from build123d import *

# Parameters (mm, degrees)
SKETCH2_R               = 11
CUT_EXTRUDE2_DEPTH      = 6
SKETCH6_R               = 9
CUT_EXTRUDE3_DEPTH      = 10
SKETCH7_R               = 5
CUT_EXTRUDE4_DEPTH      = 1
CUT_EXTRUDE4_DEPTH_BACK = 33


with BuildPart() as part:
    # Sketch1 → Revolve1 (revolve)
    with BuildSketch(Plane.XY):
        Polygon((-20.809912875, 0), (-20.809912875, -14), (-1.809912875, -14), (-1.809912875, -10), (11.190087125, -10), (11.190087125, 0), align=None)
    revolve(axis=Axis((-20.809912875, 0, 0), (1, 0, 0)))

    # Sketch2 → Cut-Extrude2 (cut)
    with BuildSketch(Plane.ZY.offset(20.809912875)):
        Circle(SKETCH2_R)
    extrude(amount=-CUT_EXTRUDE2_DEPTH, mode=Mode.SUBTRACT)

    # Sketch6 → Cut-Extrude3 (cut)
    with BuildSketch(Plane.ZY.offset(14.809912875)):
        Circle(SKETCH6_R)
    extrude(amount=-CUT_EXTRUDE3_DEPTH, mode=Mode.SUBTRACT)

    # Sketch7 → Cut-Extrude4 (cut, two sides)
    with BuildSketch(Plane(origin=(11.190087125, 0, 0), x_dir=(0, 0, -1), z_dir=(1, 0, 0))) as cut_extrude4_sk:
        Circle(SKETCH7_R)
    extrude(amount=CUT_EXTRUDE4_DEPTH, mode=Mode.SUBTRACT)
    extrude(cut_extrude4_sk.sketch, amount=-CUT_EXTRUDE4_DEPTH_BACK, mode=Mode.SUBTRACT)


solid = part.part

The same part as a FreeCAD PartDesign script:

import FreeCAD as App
import Part
import Sketcher
from FreeCAD import Vector
Q = App.Units.Quantity

doc = App.newDocument("Part")
body = doc.addObject("PartDesign::Body", "Body")

sketch1 = doc.addObject("Sketcher::SketchObject", "Sketch")
body.addObject(sketch1)
sketch1.AttachmentSupport = (doc.XY_Plane, [""])
sketch1.MapMode = "FlatFace"
sketch1.addGeometry([
    Part.LineSegment(Vector(-20.8, 0, 0), Vector(-20.8, -14, 0)),
    Part.LineSegment(Vector(-20.8, -14, 0), Vector(-1.8, -14, 0)),
    Part.LineSegment(Vector(-1.8, -14, 0), Vector(-1.8, -10, 0)),
    Part.LineSegment(Vector(-1.8, -10, 0), Vector(11.2, -10, 0)),
    Part.LineSegment(Vector(11.2, -10, 0), Vector(11.2, 0, 0)),
    Part.LineSegment(Vector(11.2, 0, 0), Vector(-20.8, 0, 0)),
], False)
sketch1.addConstraint([
    Sketcher.Constraint("Coincident", 0, 2, 1, 1),
    Sketcher.Constraint("Coincident", 1, 2, 2, 1),
    Sketcher.Constraint("Coincident", 2, 2, 3, 1),
    Sketcher.Constraint("Coincident", 3, 2, 4, 1),
    Sketcher.Constraint("Coincident", 4, 2, 5, 1),
    Sketcher.Constraint("Coincident", 5, 2, 0, 1),
    Sketcher.Constraint("Vertical", 0),
    Sketcher.Constraint("Horizontal", 1),
    Sketcher.Constraint("Vertical", 2),
    Sketcher.Constraint("Horizontal", 3),
    Sketcher.Constraint("Vertical", 4),
    Sketcher.Constraint("Horizontal", 5),
    Sketcher.Constraint("PointOnObject", 4, 2, -1),
    Sketcher.Constraint("DistanceX", 1, 1, 1, 2, Q("19 mm")),
    Sketcher.Constraint("DistanceX", 3, 1, 3, 2, Q("13 mm")),
    Sketcher.Constraint("DistanceY", 0, 2, 0, 1, Q("14 mm")),
    Sketcher.Constraint("DistanceY", 2, 1, 2, 2, Q("4 mm")),
    Sketcher.Constraint("DistanceX", 0, 2, -1, 1, Q("20.809913 mm")),
])
revolution = doc.addObject("PartDesign::Revolution", "Revolution")
body.addObject(revolution)
revolution.Profile = sketch1
revolution.ReferenceAxis = (sketch1, ["H_Axis"])
revolution.Angle = 360

sketch2 = doc.addObject("Sketcher::SketchObject", "Sketch001")
body.addObject(sketch2)
sketch2.AttachmentSupport = (doc.YZ_Plane, [""])
sketch2.MapMode = "FlatFace"
sketch2.AttachmentOffset = App.Placement(Vector(0, 0, -20.809913), App.Rotation())
sketch2.addGeometry(Part.Circle(Vector(0, 0, 0), Vector(0, 0, 1), 11), False)
sketch2.addConstraint([
    Sketcher.Constraint("Coincident", 0, 3, -1, 1),
    Sketcher.Constraint("Diameter", 0, Q("22 mm")),
])
pocket1 = doc.addObject("PartDesign::Pocket", "Pocket")
body.addObject(pocket1)
pocket1.Profile = sketch2
pocket1.Length = 6
pocket1.Reversed = True

sketch3 = doc.addObject("Sketcher::SketchObject", "Sketch002")
body.addObject(sketch3)
sketch3.AttachmentSupport = (doc.YZ_Plane, [""])
sketch3.MapMode = "FlatFace"
sketch3.AttachmentOffset = App.Placement(Vector(0, 0, -14.809913), App.Rotation())
sketch3.addGeometry(Part.Circle(Vector(0, 0, 0), Vector(0, 0, 1), 9), False)
sketch3.addConstraint([
    Sketcher.Constraint("Coincident", 0, 3, -1, 1),
    Sketcher.Constraint("Diameter", 0, Q("18 mm")),
])
pocket2 = doc.addObject("PartDesign::Pocket", "Pocket001")
body.addObject(pocket2)
pocket2.Profile = sketch3
pocket2.Length = 10
pocket2.Reversed = True

sketch4 = doc.addObject("Sketcher::SketchObject", "Sketch003")
body.addObject(sketch4)
sketch4.AttachmentSupport = (doc.YZ_Plane, [""])
sketch4.MapMode = "FlatFace"
sketch4.AttachmentOffset = App.Placement(Vector(0, 0, 11.190087), App.Rotation())
sketch4.addGeometry(Part.Circle(Vector(0, 0, 0), Vector(0, 0, 1), 5), False)
sketch4.addConstraint([
    Sketcher.Constraint("Coincident", 0, 3, -1, 1),
    Sketcher.Constraint("Diameter", 0, Q("10 mm")),
])
pocket3 = doc.addObject("PartDesign::Pocket", "Pocket002")
body.addObject(pocket3)
pocket3.Profile = sketch4
pocket3.Type = "ThroughAll"
pocket3.Midplane = True

doc.recompute()
